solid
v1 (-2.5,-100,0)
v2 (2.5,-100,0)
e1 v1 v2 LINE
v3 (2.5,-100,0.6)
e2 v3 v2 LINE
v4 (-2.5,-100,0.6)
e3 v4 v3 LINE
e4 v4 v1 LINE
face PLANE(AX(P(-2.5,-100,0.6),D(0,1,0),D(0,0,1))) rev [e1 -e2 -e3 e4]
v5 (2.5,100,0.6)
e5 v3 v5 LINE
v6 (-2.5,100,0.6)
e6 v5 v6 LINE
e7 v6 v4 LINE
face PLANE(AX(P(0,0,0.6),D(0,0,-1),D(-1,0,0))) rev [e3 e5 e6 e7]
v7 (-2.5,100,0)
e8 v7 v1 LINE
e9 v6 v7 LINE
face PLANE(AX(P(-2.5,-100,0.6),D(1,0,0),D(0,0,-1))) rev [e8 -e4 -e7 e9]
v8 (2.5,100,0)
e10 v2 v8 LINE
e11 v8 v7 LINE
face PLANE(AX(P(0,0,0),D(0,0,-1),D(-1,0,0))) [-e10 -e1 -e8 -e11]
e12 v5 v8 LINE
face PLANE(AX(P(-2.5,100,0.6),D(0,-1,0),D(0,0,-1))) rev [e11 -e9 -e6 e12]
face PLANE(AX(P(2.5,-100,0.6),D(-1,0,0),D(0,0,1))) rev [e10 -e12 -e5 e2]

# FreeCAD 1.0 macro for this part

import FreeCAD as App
import Part
import Sketcher
Q = App.Units.Quantity


def add_polygon(sketch, points):
    """Adds a closed chain of lines whose ends are joined by coincident constraints."""
    first, n = sketch.GeometryCount, len(points)
    for a, b in zip(points, points[1:] + points[:1]):
        sketch.addGeometry(Part.LineSegment(App.Vector(*a, 0), App.Vector(*b, 0)), False)
    for i in range(n):
        sketch.addConstraint(Sketcher.Constraint("Coincident", first + i, 2, first + (i + 1) % n, 1))

doc = App.newDocument("Part")
body = doc.addObject("PartDesign::Body", "Body")

sketch1 = body.newObject("Sketcher::SketchObject", "Sketch")
sketch1.AttachmentSupport = (doc.getObject("XY_Plane"), [""])
sketch1.MapMode = "FlatFace"
add_polygon(sketch1, [(-2.5, 100), (-2.5, -100), (2.5, -100), (2.5, 100)])
sketch1.addConstraint([
    Sketcher.Constraint("Vertical", 0),
    Sketcher.Constraint("Horizontal", 1),
    Sketcher.Constraint("Vertical", 2),
    Sketcher.Constraint("Horizontal", 3),
    Sketcher.Constraint("Symmetric", 0, 2, 2, 2, -1, 1),
    Sketcher.Constraint("DistanceX", 1, 1, 1, 2, Q("5 mm")),
    Sketcher.Constraint("DistanceY", 0, 2, 0, 1, Q("200 mm")),
])
pad1 = body.newObject("PartDesign::Pad", "Pad")
pad1.Profile = sketch1
pad1.Length = 0.6

doc.recompute()
